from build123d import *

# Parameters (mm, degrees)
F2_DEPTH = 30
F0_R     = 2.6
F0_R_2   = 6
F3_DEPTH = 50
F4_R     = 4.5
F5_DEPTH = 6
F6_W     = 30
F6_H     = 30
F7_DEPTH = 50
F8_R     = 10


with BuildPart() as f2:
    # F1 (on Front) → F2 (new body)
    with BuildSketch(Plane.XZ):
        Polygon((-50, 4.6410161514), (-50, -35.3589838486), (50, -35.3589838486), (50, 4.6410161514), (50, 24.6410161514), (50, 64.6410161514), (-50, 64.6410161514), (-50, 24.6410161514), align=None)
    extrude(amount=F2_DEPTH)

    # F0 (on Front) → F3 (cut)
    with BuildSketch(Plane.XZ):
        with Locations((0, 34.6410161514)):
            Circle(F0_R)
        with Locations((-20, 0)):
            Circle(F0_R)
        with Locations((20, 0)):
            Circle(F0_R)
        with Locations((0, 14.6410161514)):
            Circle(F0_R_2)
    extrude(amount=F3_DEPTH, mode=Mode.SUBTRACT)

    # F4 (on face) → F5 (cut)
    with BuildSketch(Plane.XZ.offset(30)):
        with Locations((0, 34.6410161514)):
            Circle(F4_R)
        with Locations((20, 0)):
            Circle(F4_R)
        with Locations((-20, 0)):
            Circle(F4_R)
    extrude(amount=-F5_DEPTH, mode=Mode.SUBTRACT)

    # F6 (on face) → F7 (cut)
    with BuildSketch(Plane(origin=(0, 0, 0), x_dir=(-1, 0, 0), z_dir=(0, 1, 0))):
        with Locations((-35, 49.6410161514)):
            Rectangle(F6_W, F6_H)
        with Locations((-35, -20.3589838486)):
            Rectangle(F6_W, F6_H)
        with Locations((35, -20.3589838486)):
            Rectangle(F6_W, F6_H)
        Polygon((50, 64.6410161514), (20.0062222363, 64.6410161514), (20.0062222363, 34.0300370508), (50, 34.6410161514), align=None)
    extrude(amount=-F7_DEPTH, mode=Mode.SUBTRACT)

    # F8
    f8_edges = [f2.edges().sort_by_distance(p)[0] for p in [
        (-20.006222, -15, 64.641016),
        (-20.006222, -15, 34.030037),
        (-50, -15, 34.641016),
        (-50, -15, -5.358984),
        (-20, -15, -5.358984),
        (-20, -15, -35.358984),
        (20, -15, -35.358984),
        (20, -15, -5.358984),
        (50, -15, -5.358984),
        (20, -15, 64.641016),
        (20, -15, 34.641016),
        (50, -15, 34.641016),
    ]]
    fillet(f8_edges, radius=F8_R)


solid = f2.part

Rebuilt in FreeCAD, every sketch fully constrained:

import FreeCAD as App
import Part
import Sketcher


def edges_at(feature, points):
    """Names of the edges that pass closest to the given points."""
    edges = feature.Shape.Edges
    near = lambda p: min(range(len(edges)), key=lambda i: edges[i].distToShape(Part.Vertex(*p))[0])
    return sorted({f"Edge{near(p) + 1}" for p in points})


def add_polygon(sketch, points):
    """Adds a closed chain of lines whose ends are joined by coincident constraints."""
    first, n = sketch.GeometryCount, len(points)
    for a, b in zip(points, points[1:] + points[:1]):
        sketch.addGeometry(Part.LineSegment(App.Vector(*a, 0), App.Vector(*b, 0)), False)
    for i in range(n):
        sketch.addConstraint(Sketcher.Constraint("Coincident", first + i, 2, first + (i + 1) % n, 1))

doc = App.newDocument("Part")
body = doc.addObject("PartDesign::Body", "Body")

sketch1 = doc.addObject("Sketcher::SketchObject", "Sketch")
body.addObject(sketch1)
sketch1.AttachmentSupport = (doc.XZ_Plane, [""])
sketch1.MapMode = "FlatFace"
add_polygon(sketch1, [(-50, -35), (50, -35), (50, 65), (-50, 65)])
sketch1.addConstraint([
    Sketcher.Constraint("Horizontal", 0),
    Sketcher.Constraint("Vertical", 1),
    Sketcher.Constraint("Horizontal", 2),
    Sketcher.Constraint("Vertical", 3),
    Sketcher.Constraint("Equal", 2, 1),
    Sketcher.Constraint("DistanceX", 0, 1, 0, 2, 100.0),
    Sketcher.Constraint("DistanceX", -1, 1, 0, 2, 50.0),
    Sketcher.Constraint("DistanceY", 0, 2, -1, 1, 35.358984),
])
pad1 = doc.addObject("PartDesign::Pad", "Pad")
body.addObject(pad1)
pad1.Profile = sketch1
pad1.Length = 30

sketch2 = doc.addObject("Sketcher::SketchObject", "Sketch001")
body.addObject(sketch2)
sketch2.AttachmentSupport = (doc.XZ_Plane, [""])
sketch2.MapMode = "FlatFace"
sketch2.addGeometry([
    Part.Circle(App.Vector(0, 34.6, 0), App.Vector(0, 0, 1), 2.6),
    Part.Circle(App.Vector(-20, 0, 0), App.Vector(0, 0, 1), 2.6),
    Part.Circle(App.Vector(20, 0, 0), App.Vector(0, 0, 1), 2.6),
    Part.Circle(App.Vector(0, 14.6, 0), App.Vector(0, 0, 1), 6),
], False)
sketch2.addConstraint([
    Sketcher.Constraint("Equal", 0, 1),
    Sketcher.Constraint("Equal", 1, 2),
    Sketcher.Constraint("Symmetric", 1, 3, 2, 3, -1, 1),
    Sketcher.Constraint("PointOnObject", 0, 3, -2),
    Sketcher.Constraint("PointOnObject", 1, 3, -1),
    Sketcher.Constraint("PointOnObject", 3, 3, -2),
    Sketcher.Constraint("Diameter", 3, 12.0),
    Sketcher.Constraint("Diameter", 0, 5.2),
    Sketcher.Constraint("DistanceX", 1, 3, -1, 1, 20.0),
    Sketcher.Constraint("DistanceY", 3, 3, 0, 3, 20.0),
    Sketcher.Constraint("DistanceY", -1, 1, 0, 3, 34.641016),
])
pocket1 = doc.addObject("PartDesign::Pocket", "Pocket")
body.addObject(pocket1)
pocket1.Profile = sketch2
pocket1.Length = 50
pocket1.Reversed = True

sketch3 = doc.addObject("Sketcher::SketchObject", "Sketch002")
body.addObject(sketch3)
sketch3.AttachmentSupport = (doc.XZ_Plane, [""])
sketch3.MapMode = "FlatFace"
sketch3.AttachmentOffset = App.Placement(App.Vector(0, 0, 30), App.Rotation())
sketch3.addGeometry([
    Part.Circle(App.Vector(0, 34.6, 0), App.Vector(0, 0, 1), 4.5),
    Part.Circle(App.Vector(20, 0, 0), App.Vector(0, 0, 1), 4.5),
    Part.Circle(App.Vector(-20, 0, 0), App.Vector(0, 0, 1), 4.5),
], False)
sketch3.addConstraint([
    Sketcher.Constraint("Equal", 0, 1),
    Sketcher.Constraint("Equal", 1, 2),
    Sketcher.Constraint("Symmetric", 1, 3, 2, 3, -1, 1),
    Sketcher.Constraint("PointOnObject", 0, 3, -2),
    Sketcher.Constraint("PointOnObject", 1, 3, -1),
    Sketcher.Constraint("Diameter", 0, 9.0),
    Sketcher.Constraint("DistanceX", -1, 1, 1, 3, 20.0),
    Sketcher.Constraint("DistanceY", -1, 1, 0, 3, 34.641016),
])
pocket2 = doc.addObject("PartDesign::Pocket", "Pocket001")
body.addObject(pocket2)
pocket2.Profile = sketch3
pocket2.Length = 6

sketch4 = doc.addObject("Sketcher::SketchObject", "Sketch003")
body.addObject(sketch4)
sketch4.AttachmentSupport = (doc.XZ_Plane, [""])
sketch4.MapMode = "FlatFace"
add_polygon(sketch4, [(50, 65), (50, 35), (20, 35), (20, 65)])
add_polygon(sketch4, [(50, -5), (50, -35), (20, -35), (20, -5)])
add_polygon(sketch4, [(-20, -5), (-20, -35), (-50, -35), (-50, -5)])
add_polygon(sketch4, [(-50, 65), (-20, 65), (-20, 34), (-50, 35)])
sketch4.addConstraint([
    Sketcher.Constraint("Vertical", 0),
    Sketcher.Constraint("Horizontal", 1),
    Sketcher.Constraint("Vertical", 2),
    Sketcher.Constraint("Horizontal", 3),
    Sketcher.Constraint("Vertical", 4),
    Sketcher.Constraint("Horizontal", 5),
    Sketcher.Constraint("Vertical", 6),
    Sketcher.Constraint("Horizontal", 7),
    Sketcher.Constraint("Vertical", 8),
    Sketcher.Constraint("Horizontal", 9),
    Sketcher.Constraint("Vertical", 10),
    Sketcher.Constraint("Horizontal", 11),
    Sketcher.Constraint("Horizontal", 12),
    Sketcher.Constraint("Vertical", 13),
    Sketcher.Constraint("Vertical", 15),
    Sketcher.Constraint("Symmetric", 5, 2, 8, 2, -2),
    Sketcher.Constraint("Symmetric", 7, 2, 10, 2, -2),
    Sketcher.Constraint("Symmetric", 0, 2, 14, 2, -2),
    Sketcher.Constraint("Horizontal", 3, 2, 12, 2),
    Sketcher.Constraint("Vertical", 3, 2, 4, 2),
    Sketcher.Constraint("Vertical", 2, 2, 5, 2),
    Sketcher.Constraint("Equal", 11, 0),
    Sketcher.Constraint("Equal", 2, 4),
    Sketcher.Constraint("DistanceX", 1, 2, 1, 1, 30.0),
    Sketcher.Constraint("Distance", 14, 30.0),
    Sketcher.Constraint("DistanceX", -1, 1, 0, 2, 50.0),
    Sketcher.Constraint("DistanceY", 4, 2, 0, 2, 70.0),
    Sketcher.Constraint("DistanceY", 13, 2, 13, 1, 30.610979),
    Sketcher.Constraint("DistanceY", -1, 1, 0, 2, 34.641016),
])
pocket3 = doc.addObject("PartDesign::Pocket", "Pocket002")
body.addObject(pocket3)
pocket3.Profile = sketch4
pocket3.Length = 50
pocket3.Reversed = True
doc.recompute()

fillet = doc.addObject("PartDesign::Fillet", "Fillet")
body.addObject(fillet)
fillet.Base = (pocket3, edges_at(pocket3, [
    (-20.006, -15, 64.641),
    (-20.006, -15, 34.03),
    (-50, -15, 34.641),
    (-50, -15, -5.359),
    (-20, -15, -5.359),
    (-20, -15, -35.359),
    (20, -15, -35.359),
    (20, -15, -5.359),
    (50, -15, -5.359),
    (20, -15, 64.641),
    (20, -15, 34.641),
    (50, -15, 34.641),
]))
fillet.Radius = 10

doc.recompute()
